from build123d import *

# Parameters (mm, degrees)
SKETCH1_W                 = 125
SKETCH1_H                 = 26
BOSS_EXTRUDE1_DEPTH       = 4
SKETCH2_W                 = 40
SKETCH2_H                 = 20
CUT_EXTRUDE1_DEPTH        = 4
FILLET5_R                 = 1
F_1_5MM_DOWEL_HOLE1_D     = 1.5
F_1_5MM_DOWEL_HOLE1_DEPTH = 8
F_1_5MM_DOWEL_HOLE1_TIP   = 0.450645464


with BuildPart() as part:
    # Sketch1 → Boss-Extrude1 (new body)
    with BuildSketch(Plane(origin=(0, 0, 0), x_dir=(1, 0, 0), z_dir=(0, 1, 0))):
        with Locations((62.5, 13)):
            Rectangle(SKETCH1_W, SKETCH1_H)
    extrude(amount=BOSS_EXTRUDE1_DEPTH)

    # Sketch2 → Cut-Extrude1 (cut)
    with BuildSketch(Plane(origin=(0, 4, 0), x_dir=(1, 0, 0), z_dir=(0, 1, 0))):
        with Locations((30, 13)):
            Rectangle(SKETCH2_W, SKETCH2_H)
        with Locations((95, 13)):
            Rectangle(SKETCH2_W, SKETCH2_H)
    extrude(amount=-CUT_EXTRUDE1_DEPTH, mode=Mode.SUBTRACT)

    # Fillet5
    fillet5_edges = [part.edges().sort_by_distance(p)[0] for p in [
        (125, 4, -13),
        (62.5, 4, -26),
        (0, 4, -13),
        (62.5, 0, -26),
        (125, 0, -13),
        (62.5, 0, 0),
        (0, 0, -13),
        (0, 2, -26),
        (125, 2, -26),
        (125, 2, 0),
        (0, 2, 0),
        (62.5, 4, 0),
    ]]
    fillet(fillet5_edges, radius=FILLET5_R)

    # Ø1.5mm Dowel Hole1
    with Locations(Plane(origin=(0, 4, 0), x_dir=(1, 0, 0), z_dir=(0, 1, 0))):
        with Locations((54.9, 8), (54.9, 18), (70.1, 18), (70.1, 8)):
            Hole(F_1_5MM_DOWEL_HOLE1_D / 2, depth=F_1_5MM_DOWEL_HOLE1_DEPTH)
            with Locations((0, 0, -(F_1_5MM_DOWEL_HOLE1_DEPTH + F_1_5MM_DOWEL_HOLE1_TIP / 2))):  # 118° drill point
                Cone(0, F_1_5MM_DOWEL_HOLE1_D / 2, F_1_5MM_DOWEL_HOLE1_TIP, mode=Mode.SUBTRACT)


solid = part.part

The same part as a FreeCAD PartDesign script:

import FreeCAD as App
import Part
import Sketcher
from FreeCAD import Vector
Q = App.Units.Quantity


def edges_at(feature, points):
    """Names of the edges that pass closest to the given points."""
    edges = feature.Shape.Edges
    near = lambda p: min(range(len(edges)), key=lambda i: edges[i].distToShape(Part.Vertex(*p))[0])
    return sorted({f"Edge{near(p) + 1}" for p in points})


def add_polygon(sketch, points):
    """Adds a closed chain of lines whose ends are joined by coincident constraints."""
    first, n = sketch.GeometryCount, len(points)
    for a, b in zip(points, points[1:] + points[:1]):
        sketch.addGeometry(Part.LineSegment(App.Vector(*a, 0), App.Vector(*b, 0)), False)
    for i in range(n):
        sketch.addConstraint(Sketcher.Constraint("Coincident", first + i, 2, first + (i + 1) % n, 1))

doc = App.newDocument("Part")
params = doc.addObject("Spreadsheet::Sheet", "Params")
for row, (alias, value) in enumerate([
    ("sketch1_width", "125 mm"),
    ("sketch1_height", "26 mm"),
    ("pad1_length", "4 mm"),
    ("sketch2_width", "40 mm"),
    ("sketch2_height", "20 mm"),
    ("pocket1_length", "4 mm"),
    ("fillet_radius", "1 mm"),
    ("sketch3_diameter", "1.5 mm"),
    ("hole_diameter", "1.5 mm"),
    ("hole_depth", "8 mm"),
], start=1):
    params.set(f"A{row}", alias)
    params.set(f"B{row}", "=" + value)
    params.setAlias(f"B{row}", alias)

body = doc.addObject("PartDesign::Body", "Body")

sketch1 = body.newObject("Sketcher::SketchObject", "Sketch")
sketch1.AttachmentSupport = (doc.getObject("XZ_Plane"), [""])
sketch1.MapMode = "FlatFace"
add_polygon(sketch1, [(0, -26), (0, 0), (125, 0), (125, -26)])
sketch1.addConstraint(Sketcher.Constraint("Vertical", 0))
sketch1.addConstraint(Sketcher.Constraint("Horizontal", 1))
sketch1.addConstraint(Sketcher.Constraint("Vertical", 2))
sketch1.addConstraint(Sketcher.Constraint("Horizontal", 3))
sketch1.addConstraint(Sketcher.Constraint("Coincident", 0, 2, -1, 1))
sketch1.addConstraint(Sketcher.Constraint("DistanceX", 1, 1, 1, 2, Q("125 mm")))
sketch1.addConstraint(Sketcher.Constraint("DistanceY", 0, 1, 0, 2, Q("26 mm")))
sketch1.setExpression("Constraints[9]", "Params.sketch1_width")
sketch1.setExpression("Constraints[10]", "Params.sketch1_height")
pad1 = body.newObject("PartDesign::Pad", "Pad")
pad1.Profile = sketch1
pad1.setExpression("Length", "Params.pad1_length")
pad1.Reversed = True

sketch2 = body.newObject("Sketcher::SketchObject", "Sketch001")
sketch2.AttachmentSupport = (doc.getObject("XZ_Plane"), [""])
sketch2.MapMode = "FlatFace"
sketch2.AttachmentOffset = App.Placement(Vector(0, 0, -4), App.Rotation())
add_polygon(sketch2, [(10, -23), (10, -3), (50, -3), (50, -23)])
add_polygon(sketch2, [(75, -23), (75, -3), (115, -3), (115, -23)])
sketch2.addConstraint(Sketcher.Constraint("Vertical", 0))
sketch2.addConstraint(Sketcher.Constraint("Horizontal", 1))
sketch2.addConstraint(Sketcher.Constraint("Vertical", 2))
sketch2.addConstraint(Sketcher.Constraint("Horizontal", 3))
sketch2.addConstraint(Sketcher.Constraint("Vertical", 4))
sketch2.addConstraint(Sketcher.Constraint("Horizontal", 5))
sketch2.addConstraint(Sketcher.Constraint("Vertical", 6))
sketch2.addConstraint(Sketcher.Constraint("Horizontal", 7))
sketch2.addConstraint(Sketcher.Constraint("Horizontal", 1, 2, 4, 2))
sketch2.addConstraint(Sketcher.Constraint("Horizontal", 3, 2, 6, 2))
sketch2.addConstraint(Sketcher.Constraint("Equal", 3, 5))
sketch2.addConstraint(Sketcher.Constraint("DistanceX", 1, 1, 1, 2, Q("40 mm")))
sketch2.addConstraint(Sketcher.Constraint("DistanceY", 0, 1, 0, 2, Q("20 mm")))
sketch2.addConstraint(Sketcher.Constraint("DistanceX", -1, 1, 0, 2, Q("10 mm")))
sketch2.addConstraint(Sketcher.Constraint("DistanceY", 0, 2, -1, 1, Q("3 mm")))
sketch2.addConstraint(Sketcher.Constraint("DistanceX", -1, 1, 4, 2, Q("75 mm")))
sketch2.setExpression("Constraints[19]", "Params.sketch2_width")
sketch2.setExpression("Constraints[20]", "Params.sketch2_height")
pocket1 = body.newObject("PartDesign::Pocket", "Pocket")
pocket1.Profile = sketch2
pocket1.setExpression("Length", "Params.pocket1_length")
pocket1.Reversed = True
doc.recompute()

fillet = body.newObject("PartDesign::Fillet", "Fillet")
fillet.Base = (pocket1, edges_at(pocket1, [
    (125, 4, -13),
    (62.5, 4, -26),
    (0, 4, -13),
    (62.5, 0, -26),
    (125, 0, -13),
    (62.5, 0, 0),
    (0, 0, -13),
    (0, 2, -26),
    (125, 2, -26),
    (125, 2, 0),
    (0, 2, 0),
    (62.5, 4, 0),
]))
fillet.setExpression("Radius", "Params.fillet_radius")

sketch3 = body.newObject("Sketcher::SketchObject", "Sketch002")
sketch3.AttachmentSupport = (doc.getObject("XZ_Plane"), [""])
sketch3.MapMode = "FlatFace"
sketch3.AttachmentOffset = App.Placement(Vector(0, 0, -4), App.Rotation())
sketch3.addGeometry(Part.Circle(Vector(54.9, -8, 0), Vector(0, 0, 1), 0.75), False)
sketch3.addGeometry(Part.Circle(Vector(54.9, -18, 0), Vector(0, 0, 1), 0.75), False)
sketch3.addGeometry(Part.Circle(Vector(70.1, -18, 0), Vector(0, 0, 1), 0.75), False)
sketch3.addGeometry(Part.Circle(Vector(70.1, -8, 0), Vector(0, 0, 1), 0.75), False)
sketch3.addConstraint(Sketcher.Constraint("Equal", 0, 1))
sketch3.addConstraint(Sketcher.Constraint("Equal", 1, 2))
sketch3.addConstraint(Sketcher.Constraint("Equal", 2, 3))
sketch3.addConstraint(Sketcher.Constraint("Horizontal", 1, 3, 2, 3))
sketch3.addConstraint(Sketcher.Constraint("Horizontal", 0, 3, 3, 3))
sketch3.addConstraint(Sketcher.Constraint("Vertical", 0, 3, 1, 3))
sketch3.addConstraint(Sketcher.Constraint("Vertical", 2, 3, 3, 3))
sketch3.addConstraint(Sketcher.Constraint("Diameter", 0, Q("1.5 mm")))
sketch3.addConstraint(Sketcher.Constraint("DistanceY", 0, 3, -1, 1, Q("8 mm")))
sketch3.addConstraint(Sketcher.Constraint("DistanceY", 1, 3, -1, 1, Q("18 mm")))
sketch3.addConstraint(Sketcher.Constraint("DistanceX", -1, 1, 0, 3, Q("54.9 mm")))
sketch3.addConstraint(Sketcher.Constraint("DistanceX", -1, 1, 2, 3, Q("70.1 mm")))
sketch3.setExpression("Constraints[7]", "Params.sketch3_diameter")
doc.recompute()
hole = body.newObject("PartDesign::Hole", "Hole")
hole.Profile = sketch3
hole.ThreadType = "None"
hole.setExpression("Diameter", "Params.hole_diameter")
hole.DepthType = "Dimension"
hole.setExpression("Depth", "Params.hole_depth")
hole.DrillPoint = "Angled"
hole.DrillPointAngle = 118
hole.Reversed = True

doc.recompute()
